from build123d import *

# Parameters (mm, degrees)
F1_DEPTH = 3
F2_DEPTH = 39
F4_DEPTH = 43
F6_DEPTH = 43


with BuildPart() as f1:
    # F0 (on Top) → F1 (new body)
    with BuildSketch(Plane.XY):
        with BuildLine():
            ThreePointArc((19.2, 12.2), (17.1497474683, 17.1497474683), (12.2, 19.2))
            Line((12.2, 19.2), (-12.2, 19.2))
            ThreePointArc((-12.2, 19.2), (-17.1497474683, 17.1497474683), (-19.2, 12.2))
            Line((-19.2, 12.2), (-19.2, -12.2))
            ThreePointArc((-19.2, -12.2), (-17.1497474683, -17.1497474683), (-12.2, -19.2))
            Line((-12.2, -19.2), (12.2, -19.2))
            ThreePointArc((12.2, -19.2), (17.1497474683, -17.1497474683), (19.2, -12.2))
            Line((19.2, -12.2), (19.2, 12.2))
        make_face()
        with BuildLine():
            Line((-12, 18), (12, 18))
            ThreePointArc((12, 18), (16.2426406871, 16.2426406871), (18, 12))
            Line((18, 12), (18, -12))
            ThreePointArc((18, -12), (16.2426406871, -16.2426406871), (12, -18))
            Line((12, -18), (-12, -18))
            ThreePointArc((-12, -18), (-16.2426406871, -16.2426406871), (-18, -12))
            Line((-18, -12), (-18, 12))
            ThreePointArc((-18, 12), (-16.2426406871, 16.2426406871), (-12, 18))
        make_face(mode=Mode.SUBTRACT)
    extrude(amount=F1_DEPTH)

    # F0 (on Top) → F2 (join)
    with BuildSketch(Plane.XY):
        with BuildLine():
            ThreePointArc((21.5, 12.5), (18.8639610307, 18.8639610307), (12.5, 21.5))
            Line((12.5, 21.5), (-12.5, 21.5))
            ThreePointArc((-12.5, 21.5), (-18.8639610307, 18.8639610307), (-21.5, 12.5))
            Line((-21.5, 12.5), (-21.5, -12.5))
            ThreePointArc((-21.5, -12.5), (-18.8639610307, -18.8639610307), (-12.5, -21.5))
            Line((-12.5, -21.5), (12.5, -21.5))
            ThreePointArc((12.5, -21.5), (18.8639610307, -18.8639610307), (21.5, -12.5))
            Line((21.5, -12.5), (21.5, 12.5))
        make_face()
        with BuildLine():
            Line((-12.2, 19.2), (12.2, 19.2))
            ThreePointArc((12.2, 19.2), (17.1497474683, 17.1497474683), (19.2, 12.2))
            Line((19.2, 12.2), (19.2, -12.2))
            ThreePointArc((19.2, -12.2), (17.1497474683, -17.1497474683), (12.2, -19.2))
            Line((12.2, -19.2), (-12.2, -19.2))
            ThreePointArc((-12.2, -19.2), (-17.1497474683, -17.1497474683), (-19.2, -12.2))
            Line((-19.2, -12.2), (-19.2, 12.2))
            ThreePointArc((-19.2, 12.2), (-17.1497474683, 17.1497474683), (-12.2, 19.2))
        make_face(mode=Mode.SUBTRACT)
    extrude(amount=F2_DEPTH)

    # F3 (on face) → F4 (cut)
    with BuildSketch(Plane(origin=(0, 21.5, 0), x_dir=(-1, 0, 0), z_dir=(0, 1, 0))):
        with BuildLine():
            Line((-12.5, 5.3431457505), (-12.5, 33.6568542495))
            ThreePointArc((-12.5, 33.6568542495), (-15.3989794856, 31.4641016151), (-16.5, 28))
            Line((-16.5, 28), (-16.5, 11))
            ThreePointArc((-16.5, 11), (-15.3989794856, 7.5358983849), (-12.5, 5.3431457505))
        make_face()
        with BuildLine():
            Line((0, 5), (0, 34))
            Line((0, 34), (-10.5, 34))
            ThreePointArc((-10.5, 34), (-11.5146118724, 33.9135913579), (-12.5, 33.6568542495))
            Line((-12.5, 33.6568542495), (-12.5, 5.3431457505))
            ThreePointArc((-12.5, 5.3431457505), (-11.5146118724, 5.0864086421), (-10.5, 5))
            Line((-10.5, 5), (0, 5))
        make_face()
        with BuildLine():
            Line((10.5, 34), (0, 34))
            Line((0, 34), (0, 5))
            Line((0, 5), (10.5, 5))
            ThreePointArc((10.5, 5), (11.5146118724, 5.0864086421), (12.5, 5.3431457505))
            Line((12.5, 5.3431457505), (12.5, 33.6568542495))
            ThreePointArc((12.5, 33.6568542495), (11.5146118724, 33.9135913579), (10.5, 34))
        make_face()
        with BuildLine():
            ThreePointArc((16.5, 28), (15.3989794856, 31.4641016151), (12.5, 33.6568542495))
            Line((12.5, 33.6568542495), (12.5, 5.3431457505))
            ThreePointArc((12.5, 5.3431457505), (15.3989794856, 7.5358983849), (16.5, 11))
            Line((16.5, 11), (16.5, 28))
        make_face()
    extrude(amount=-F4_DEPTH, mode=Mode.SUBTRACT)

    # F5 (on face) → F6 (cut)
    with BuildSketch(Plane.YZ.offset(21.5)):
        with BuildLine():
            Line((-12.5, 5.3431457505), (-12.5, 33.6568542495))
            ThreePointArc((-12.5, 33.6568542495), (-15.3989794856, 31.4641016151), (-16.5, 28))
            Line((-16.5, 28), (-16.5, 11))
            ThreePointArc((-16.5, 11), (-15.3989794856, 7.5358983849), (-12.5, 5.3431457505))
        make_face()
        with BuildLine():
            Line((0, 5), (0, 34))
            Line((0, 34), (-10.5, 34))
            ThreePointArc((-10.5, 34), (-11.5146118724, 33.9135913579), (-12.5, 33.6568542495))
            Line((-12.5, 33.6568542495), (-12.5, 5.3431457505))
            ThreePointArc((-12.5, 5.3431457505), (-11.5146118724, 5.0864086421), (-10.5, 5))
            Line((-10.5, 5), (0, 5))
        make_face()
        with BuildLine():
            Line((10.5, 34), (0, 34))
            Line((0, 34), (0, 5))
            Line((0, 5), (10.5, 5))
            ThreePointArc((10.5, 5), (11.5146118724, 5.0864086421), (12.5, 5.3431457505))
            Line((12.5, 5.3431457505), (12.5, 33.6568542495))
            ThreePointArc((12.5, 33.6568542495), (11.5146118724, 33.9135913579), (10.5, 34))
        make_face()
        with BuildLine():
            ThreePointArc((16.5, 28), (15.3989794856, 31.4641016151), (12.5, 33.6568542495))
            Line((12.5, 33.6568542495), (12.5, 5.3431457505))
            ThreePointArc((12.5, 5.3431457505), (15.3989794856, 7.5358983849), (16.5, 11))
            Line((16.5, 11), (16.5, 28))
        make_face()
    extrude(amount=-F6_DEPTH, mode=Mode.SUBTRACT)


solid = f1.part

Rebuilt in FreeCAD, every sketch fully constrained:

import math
import FreeCAD as App
import Part
import Sketcher
from FreeCAD import Vector

doc = App.newDocument("Part")
body = doc.addObject("PartDesign::Body", "Body")

# Sketch on XY plane
sketch1 = body.newObject("Sketcher::SketchObject", "Sketch")
sketch1.AttachmentSupport = (doc.getObject("XY_Plane"), [""])
sketch1.MapMode = "FlatFace"
sketch1.addGeometry(Part.ArcOfCircle(Part.Circle(Vector(12.2, 12.2, 0), Vector(0, 0, 1), 7), math.radians(0), math.radians(90)), False)
sketch1.addGeometry(Part.LineSegment(Vector(12.2, 19.2, 0), Vector(-12.2, 19.2, 0)), False)
sketch1.addGeometry(Part.ArcOfCircle(Part.Circle(Vector(-12.2, 12.2, 0), Vector(0, 0, 1), 7), math.radians(90), math.radians(180)), False)
sketch1.addGeometry(Part.LineSegment(Vector(-19.2, 12.2, 0), Vector(-19.2, -12.2, 0)), False)
sketch1.addGeometry(Part.ArcOfCircle(Part.Circle(Vector(-12.2, -12.2, 0), Vector(0, 0, 1), 7), math.radians(180), math.radians(270)), False)
sketch1.addGeometry(Part.LineSegment(Vector(-12.2, -19.2, 0), Vector(12.2, -19.2, 0)), False)
sketch1.addGeometry(Part.ArcOfCircle(Part.Circle(Vector(12.2, -12.2, 0), Vector(0, 0, 1), 7), math.radians(-90), math.radians(0)), False)
sketch1.addGeometry(Part.LineSegment(Vector(19.2, -12.2, 0), Vector(19.2, 12.2, 0)), False)
sketch1.addGeometry(Part.ArcOfCircle(Part.Circle(Vector(-12, 12, 0), Vector(0, 0, 1), 6), math.radians(90), math.radians(180)), False)
sketch1.addGeometry(Part.LineSegment(Vector(-12, 18, 0), Vector(12, 18, 0)), False)
sketch1.addGeometry(Part.ArcOfCircle(Part.Circle(Vector(12, 12, 0), Vector(0, 0, 1), 6), math.radians(0), math.radians(90)), False)
sketch1.addGeometry(Part.LineSegment(Vector(18, 12, 0), Vector(18, -12, 0)), False)
sketch1.addGeometry(Part.ArcOfCircle(Part.Circle(Vector(12, -12, 0), Vector(0, 0, 1), 6), math.radians(-90), math.radians(0)), False)
sketch1.addGeometry(Part.LineSegment(Vector(12, -18, 0), Vector(-12, -18, 0)), False)
sketch1.addGeometry(Part.ArcOfCircle(Part.Circle(Vector(-12, -12, 0), Vector(0, 0, 1), 6), math.radians(180), math.radians(270)), False)
sketch1.addGeometry(Part.LineSegment(Vector(-18, -12, 0), Vector(-18, 12, 0)), False)
sketch1.addConstraint(Sketcher.Constraint("Tangent", 0, 2, 1, 1))
sketch1.addConstraint(Sketcher.Constraint("Tangent", 1, 2, 2, 1))
sketch1.addConstraint(Sketcher.Constraint("Tangent", 2, 2, 3, 1))
sketch1.addConstraint(Sketcher.Constraint("Tangent", 3, 2, 4, 1))
sketch1.addConstraint(Sketcher.Constraint("Tangent", 4, 2, 5, 1))
sketch1.addConstraint(Sketcher.Constraint("Tangent", 5, 2, 6, 1))
sketch1.addConstraint(Sketcher.Constraint("Tangent", 6, 2, 7, 1))
sketch1.addConstraint(Sketcher.Constraint("Tangent", 7, 2, 0, 1))
sketch1.addConstraint(Sketcher.Constraint("Tangent", 8, 1, 9, 1))
sketch1.addConstraint(Sketcher.Constraint("Tangent", 9, 2, 10, 2))
sketch1.addConstraint(Sketcher.Constraint("Tangent", 10, 1, 11, 1))
sketch1.addConstraint(Sketcher.Constraint("Tangent", 11, 2, 12, 2))
sketch1.addConstraint(Sketcher.Constraint("Tangent", 12, 1, 13, 1))
sketch1.addConstraint(Sketcher.Constraint("Tangent", 13, 2, 14, 2))
sketch1.addConstraint(Sketcher.Constraint("Tangent", 14, 1, 15, 1))
sketch1.addConstraint(Sketcher.Constraint("Tangent", 15, 2, 8, 2))
sketch1.addConstraint(Sketcher.Constraint("Horizontal", 1))
sketch1.addConstraint(Sketcher.Constraint("Vertical", 3))
sketch1.addConstraint(Sketcher.Constraint("Horizontal", 5))
sketch1.addConstraint(Sketcher.Constraint("Vertical", 7))
sketch1.addConstraint(Sketcher.Constraint("Horizontal", 9))
sketch1.addConstraint(Sketcher.Constraint("Vertical", 11))
sketch1.addConstraint(Sketcher.Constraint("Horizontal", 13))
sketch1.addConstraint(Sketcher.Constraint("Vertical", 15))
sketch1.addConstraint(Sketcher.Constraint("Equal", 0, 2))
sketch1.addConstraint(Sketcher.Constraint("Equal", 2, 4))
sketch1.addConstraint(Sketcher.Constraint("Equal", 4, 6))
sketch1.addConstraint(Sketcher.Constraint("Equal", 8, 10))
sketch1.addConstraint(Sketcher.Constraint("Equal", 10, 12))
sketch1.addConstraint(Sketcher.Constraint("Equal", 12, 14))
sketch1.addConstraint(Sketcher.Constraint("Symmetric", 0, 3, 4, 3, -1, 1))
sketch1.addConstraint(Sketcher.Constraint("Symmetric", 8, 3, 12, 3, -1, 1))
sketch1.addConstraint(Sketcher.Constraint("Equal", 5, 3))
sketch1.addConstraint(Sketcher.Constraint("Equal", 13, 11))
sketch1.addConstraint(Sketcher.Constraint("Radius", 0, 7.0))
sketch1.addConstraint(Sketcher.Constraint("Radius", 8, 6.0))
sketch1.addConstraint(Sketcher.Constraint("DistanceX", 9, 1, 9, 2, 24.0))
sketch1.addConstraint(Sketcher.Constraint("DistanceX", 1, 2, 1, 1, 24.4))
pad1 = body.newObject("PartDesign::Pad", "Pad")
pad1.Profile = sketch1
pad1.Length = 3

# Sketch on XY plane
sketch2 = body.newObject("Sketcher::SketchObject", "Sketch001")
sketch2.AttachmentSupport = (doc.getObject("XY_Plane"), [""])
sketch2.MapMode = "FlatFace"
sketch2.addGeometry(Part.ArcOfCircle(Part.Circle(Vector(12.5, 12.5, 0), Vector(0, 0, 1), 9), math.radians(0), math.radians(90)), False)
sketch2.addGeometry(Part.LineSegment(Vector(12.5, 21.5, 0), Vector(-12.5, 21.5, 0)), False)
sketch2.addGeometry(Part.ArcOfCircle(Part.Circle(Vector(-12.5, 12.5, 0), Vector(0, 0, 1), 9), math.radians(90), math.radians(180)), False)
sketch2.addGeometry(Part.LineSegment(Vector(-21.5, 12.5, 0), Vector(-21.5, -12.5, 0)), False)
sketch2.addGeometry(Part.ArcOfCircle(Part.Circle(Vector(-12.5, -12.5, 0), Vector(0, 0, 1), 9), math.radians(180), math.radians(270)), False)
sketch2.addGeometry(Part.LineSegment(Vector(-12.5, -21.5, 0), Vector(12.5, -21.5, 0)), False)
sketch2.addGeometry(Part.ArcOfCircle(Part.Circle(Vector(12.5, -12.5, 0), Vector(0, 0, 1), 9), math.radians(-90), math.radians(0)), False)
sketch2.addGeometry(Part.LineSegment(Vector(21.5, -12.5, 0), Vector(21.5, 12.5, 0)), False)
sketch2.addGeometry(Part.ArcOfCircle(Part.Circle(Vector(-12.2, 12.2, 0), Vector(0, 0, 1), 7), math.radians(90), math.radians(180)), False)
sketch2.addGeometry(Part.LineSegment(Vector(-12.2, 19.2, 0), Vector(12.2, 19.2, 0)), False)
sketch2.addGeometry(Part.ArcOfCircle(Part.Circle(Vector(12.2, 12.2, 0), Vector(0, 0, 1), 7), math.radians(0), math.radians(90)), False)
sketch2.addGeometry(Part.LineSegment(Vector(19.2, 12.2, 0), Vector(19.2, -12.2, 0)), False)
sketch2.addGeometry(Part.ArcOfCircle(Part.Circle(Vector(12.2, -12.2, 0), Vector(0, 0, 1), 7), math.radians(-90), math.radians(0)), False)
sketch2.addGeometry(Part.LineSegment(Vector(12.2, -19.2, 0), Vector(-12.2, -19.2, 0)), False)
sketch2.addGeometry(Part.ArcOfCircle(Part.Circle(Vector(-12.2, -12.2, 0), Vector(0, 0, 1), 7), math.radians(180), math.radians(270)), False)
sketch2.addGeometry(Part.LineSegment(Vector(-19.2, -12.2, 0), Vector(-19.2, 12.2, 0)), False)
sketch2.addConstraint(Sketcher.Constraint("Tangent", 0, 2, 1, 1))
sketch2.addConstraint(Sketcher.Constraint("Tangent", 1, 2, 2, 1))
sketch2.addConstraint(Sketcher.Constraint("Tangent", 2, 2, 3, 1))
sketch2.addConstraint(Sketcher.Constraint("Tangent", 3, 2, 4, 1))
sketch2.addConstraint(Sketcher.Constraint("Tangent", 4, 2, 5, 1))
sketch2.addConstraint(Sketcher.Constraint("Tangent", 5, 2, 6, 1))
sketch2.addConstraint(Sketcher.Constraint("Tangent", 6, 2, 7, 1))
sketch2.addConstraint(Sketcher.Constraint("Tangent", 7, 2, 0, 1))
sketch2.addConstraint(Sketcher.Constraint("Tangent", 8, 1, 9, 1))
sketch2.addConstraint(Sketcher.Constraint("Tangent", 9, 2, 10, 2))
sketch2.addConstraint(Sketcher.Constraint("Tangent", 10, 1, 11, 1))
sketch2.addConstraint(Sketcher.Constraint("Tangent", 11, 2, 12, 2))
sketch2.addConstraint(Sketcher.Constraint("Tangent", 12, 1, 13, 1))
sketch2.addConstraint(Sketcher.Constraint("Tangent", 13, 2, 14, 2))
sketch2.addConstraint(Sketcher.Constraint("Tangent", 14, 1, 15, 1))
sketch2.addConstraint(Sketcher.Constraint("Tangent", 15, 2, 8, 2))
sketch2.addConstraint(Sketcher.Constraint("Horizontal", 1))
sketch2.addConstraint(Sketcher.Constraint("Vertical", 3))
sketch2.addConstraint(Sketcher.Constraint("Horizontal", 5))
sketch2.addConstraint(Sketcher.Constraint("Vertical", 7))
sketch2.addConstraint(Sketcher.Constraint("Horizontal", 9))
sketch2.addConstraint(Sketcher.Constraint("Vertical", 11))
sketch2.addConstraint(Sketcher.Constraint("Horizontal", 13))
sketch2.addConstraint(Sketcher.Constraint("Vertical", 15))
sketch2.addConstraint(Sketcher.Constraint("Equal", 0, 2))
sketch2.addConstraint(Sketcher.Constraint("Equal", 2, 4))
sketch2.addConstraint(Sketcher.Constraint("Equal", 4, 6))
sketch2.addConstraint(Sketcher.Constraint("Equal", 8, 10))
sketch2.addConstraint(Sketcher.Constraint("Equal", 10, 12))
sketch2.addConstraint(Sketcher.Constraint("Equal", 12, 14))
sketch2.addConstraint(Sketcher.Constraint("Symmetric", 0, 3, 4, 3, -1, 1))
sketch2.addConstraint(Sketcher.Constraint("Symmetric", 8, 3, 12, 3, -1, 1))
sketch2.addConstraint(Sketcher.Constraint("Equal", 5, 3))
sketch2.addConstraint(Sketcher.Constraint("Equal", 13, 11))
sketch2.addConstraint(Sketcher.Constraint("Radius", 0, 9.0))
sketch2.addConstraint(Sketcher.Constraint("Radius", 8, 7.0))
sketch2.addConstraint(Sketcher.Constraint("DistanceX", 1, 2, 1, 1, 25.0))
sketch2.addConstraint(Sketcher.Constraint("DistanceX", 9, 1, 9, 2, 24.4))
pad2 = body.newObject("PartDesign::Pad", "Pad001")
pad2.Profile = sketch2
pad2.Length = 39

# Sketch on XZ plane
sketch3 = body.newObject("Sketcher::SketchObject", "Sketch002")
sketch3.AttachmentSupport = (doc.getObject("XZ_Plane"), [""])
sketch3.MapMode = "FlatFace"
sketch3.AttachmentOffset = App.Placement(Vector(0, 0, -21.5), App.Rotation())
sketch3.addGeometry(Part.ArcOfCircle(Part.Circle(Vector(10.5, 28, 0), Vector(0, 0, 1), 6), math.radians(0), math.radians(70.528779)), False)
sketch3.addGeometry(Part.LineSegment(Vector(16.5, 28, 0), Vector(16.5, 11, 0)), False)
sketch3.addGeometry(Part.ArcOfCircle(Part.Circle(Vector(10.5, 11, 0), Vector(0, 0, 1), 6), math.radians(-70.528779), math.radians(0)), False)
sketch3.addGeometry(Part.ArcOfCircle(Part.Circle(Vector(10.5, 11, 0), Vector(0, 0, 1), 6), math.radians(-90), math.radians(-70.528779)), False)
sketch3.addGeometry(Part.LineSegment(Vector(10.5, 5, 0), Vector(-10.5, 5, 0)), False)
sketch3.addGeometry(Part.ArcOfCircle(Part.Circle(Vector(-10.5, 11, 0), Vector(0, 0, 1), 6), math.radians(-109.471221), math.radians(-90)), False)
sketch3.addGeometry(Part.ArcOfCircle(Part.Circle(Vector(-10.5, 11, 0), Vector(0, 0, 1), 6), math.radians(180), math.radians(250.528779)), False)
sketch3.addGeometry(Part.LineSegment(Vector(-16.5, 11, 0), Vector(-16.5, 28, 0)), False)
sketch3.addGeometry(Part.ArcOfCircle(Part.Circle(Vector(-10.5, 28, 0), Vector(0, 0, 1), 6), math.radians(109.471221), math.radians(180)), False)
sketch3.addGeometry(Part.ArcOfCircle(Part.Circle(Vector(-10.5, 28, 0), Vector(0, 0, 1), 6), math.radians(90), math.radians(109.471221)), False)
sketch3.addGeometry(Part.LineSegment(Vector(-10.5, 34, 0), Vector(10.5, 34, 0)), False)
sketch3.addGeometry(Part.ArcOfCircle(Part.Circle(Vector(10.5, 28, 0), Vector(0, 0, 1), 6), math.radians(70.528779), math.radians(90)), False)
sketch3.addConstraint(Sketcher.Constraint("Tangent", 0, 1, 1, 1))
sketch3.addConstraint(Sketcher.Constraint("Tangent", 1, 2, 2, 2))
sketch3.addConstraint(Sketcher.Constraint("Tangent", 2, 1, 3, 2))
sketch3.addConstraint(Sketcher.Constraint("Tangent", 3, 1, 4, 1))
sketch3.addConstraint(Sketcher.Constraint("Tangent", 4, 2, 5, 2))
sketch3.addConstraint(Sketcher.Constraint("Tangent", 5, 1, 6, 2))
sketch3.addConstraint(Sketcher.Constraint("Tangent", 6, 1, 7, 1))
sketch3.addConstraint(Sketcher.Constraint("Tangent", 7, 2, 8, 2))
sketch3.addConstraint(Sketcher.Constraint("Tangent", 8, 1, 9, 2))
sketch3.addConstraint(Sketcher.Constraint("Tangent", 9, 1, 10, 1))
sketch3.addConstraint(Sketcher.Constraint("Tangent", 10, 2, 11, 2))
sketch3.addConstraint(Sketcher.Constraint("Tangent", 11, 1, 0, 2))
sketch3.addConstraint(Sketcher.Constraint("Vertical", 1))
sketch3.addConstraint(Sketcher.Constraint("Horizontal", 4))
sketch3.addConstraint(Sketcher.Constraint("Vertical", 7))
sketch3.addConstraint(Sketcher.Constraint("Horizontal", 10))
sketch3.addConstraint(Sketcher.Constraint("Equal", 0, 2))
sketch3.addConstraint(Sketcher.Constraint("Equal", 2, 3))
sketch3.addConstraint(Sketcher.Constraint("Equal", 3, 5))
sketch3.addConstraint(Sketcher.Constraint("Equal", 5, 6))
sketch3.addConstraint(Sketcher.Constraint("Equal", 6, 8))
sketch3.addConstraint(Sketcher.Constraint("Equal", 8, 9))
sketch3.addConstraint(Sketcher.Constraint("Equal", 9, 11))
sketch3.addConstraint(Sketcher.Constraint("Symmetric", 2, 1, 5, 1, -2))
sketch3.addConstraint(Sketcher.Constraint("Horizontal", 8, 1, 11, 1))
sketch3.addConstraint(Sketcher.Constraint("Vertical", 5, 1, 8, 1))
sketch3.addConstraint(Sketcher.Constraint("Radius", 0, 6.0))
sketch3.addConstraint(Sketcher.Constraint("DistanceX", 4, 2, 4, 1, 21.0))
sketch3.addConstraint(Sketcher.Constraint("DistanceY", 1, 2, 1, 1, 17.0))
sketch3.addConstraint(Sketcher.Constraint("DistanceY", -1, 1, 0, 3, 28.0))
sketch3.addConstraint(Sketcher.Constraint("DistanceX", 2, 3, 2, 1, 2.0))
pocket1 = body.newObject("PartDesign::Pocket", "Pocket")
pocket1.Profile = sketch3
pocket1.Length = 43
pocket1.Reversed = True

# Sketch on YZ plane
sketch4 = body.newObject("Sketcher::SketchObject", "Sketch003")
sketch4.AttachmentSupport = (doc.getObject("YZ_Plane"), [""])
sketch4.MapMode = "FlatFace"
sketch4.AttachmentOffset = App.Placement(Vector(0, 0, 21.5), App.Rotation())
sketch4.addGeometry(Part.ArcOfCircle(Part.Circle(Vector(-10.5, 28, 0), Vector(0, 0, 1), 6), math.radians(109.471221), math.radians(180)), False)
sketch4.addGeometry(Part.LineSegment(Vector(-16.5, 28, 0), Vector(-16.5, 11, 0)), False)
sketch4.addGeometry(Part.ArcOfCircle(Part.Circle(Vector(-10.5, 11, 0), Vector(0, 0, 1), 6), math.radians(180), math.radians(250.528779)), False)
sketch4.addGeometry(Part.ArcOfCircle(Part.Circle(Vector(-10.5, 11, 0), Vector(0, 0, 1), 6), math.radians(-109.471221), math.radians(-90)), False)
sketch4.addGeometry(Part.LineSegment(Vector(-10.5, 5, 0), Vector(10.5, 5, 0)), False)
sketch4.addGeometry(Part.ArcOfCircle(Part.Circle(Vector(10.5, 11, 0), Vector(0, 0, 1), 6), math.radians(-90), math.radians(-70.528779)), False)
sketch4.addGeometry(Part.ArcOfCircle(Part.Circle(Vector(10.5, 11, 0), Vector(0, 0, 1), 6), math.radians(-70.528779), math.radians(0)), False)
sketch4.addGeometry(Part.LineSegment(Vector(16.5, 11, 0), Vector(16.5, 28, 0)), False)
sketch4.addGeometry(Part.ArcOfCircle(Part.Circle(Vector(10.5, 28, 0), Vector(0, 0, 1), 6), math.radians(0), math.radians(70.528779)), False)
sketch4.addGeometry(Part.ArcOfCircle(Part.Circle(Vector(10.5, 28, 0), Vector(0, 0, 1), 6), math.radians(70.528779), math.radians(90)), False)
sketch4.addGeometry(Part.LineSegment(Vector(10.5, 34, 0), Vector(-10.5, 34, 0)), False)
sketch4.addGeometry(Part.ArcOfCircle(Part.Circle(Vector(-10.5, 28, 0), Vector(0, 0, 1), 6), math.radians(90), math.radians(109.471221)), False)
sketch4.addConstraint(Sketcher.Constraint("Tangent", 0, 2, 1, 1))
sketch4.addConstraint(Sketcher.Constraint("Tangent", 1, 2, 2, 1))
sketch4.addConstraint(Sketcher.Constraint("Tangent", 2, 2, 3, 1))
sketch4.addConstraint(Sketcher.Constraint("Tangent", 3, 2, 4, 1))
sketch4.addConstraint(Sketcher.Constraint("Tangent", 4, 2, 5, 1))
sketch4.addConstraint(Sketcher.Constraint("Tangent", 5, 2, 6, 1))
sketch4.addConstraint(Sketcher.Constraint("Tangent", 6, 2, 7, 1))
sketch4.addConstraint(Sketcher.Constraint("Tangent", 7, 2, 8, 1))
sketch4.addConstraint(Sketcher.Constraint("Tangent", 8, 2, 9, 1))
sketch4.addConstraint(Sketcher.Constraint("Tangent", 9, 2, 10, 1))
sketch4.addConstraint(Sketcher.Constraint("Tangent", 10, 2, 11, 1))
sketch4.addConstraint(Sketcher.Constraint("Tangent", 11, 2, 0, 1))
sketch4.addConstraint(Sketcher.Constraint("Vertical", 1))
sketch4.addConstraint(Sketcher.Constraint("Horizontal", 4))
sketch4.addConstraint(Sketcher.Constraint("Vertical", 7))
sketch4.addConstraint(Sketcher.Constraint("Horizontal", 10))
sketch4.addConstraint(Sketcher.Constraint("Equal", 0, 2))
sketch4.addConstraint(Sketcher.Constraint("Equal", 2, 3))
sketch4.addConstraint(Sketcher.Constraint("Equal", 3, 5))
sketch4.addConstraint(Sketcher.Constraint("Equal", 5, 6))
sketch4.addConstraint(Sketcher.Constraint("Equal", 6, 8))
sketch4.addConstraint(Sketcher.Constraint("Equal", 8, 9))
sketch4.addConstraint(Sketcher.Constraint("Equal", 9, 11))
sketch4.addConstraint(Sketcher.Constraint("Symmetric", 2, 2, 5, 2, -2))
sketch4.addConstraint(Sketcher.Constraint("Horizontal", 8, 2, 11, 2))
sketch4.addConstraint(Sketcher.Constraint("Vertical", 5, 2, 8, 2))
sketch4.addConstraint(Sketcher.Constraint("Radius", 0, 6.0))
sketch4.addConstraint(Sketcher.Constraint("DistanceX", 4, 1, 4, 2, 21.0))
sketch4.addConstraint(Sketcher.Constraint("DistanceY", 1, 2, 1, 1, 17.0))
sketch4.addConstraint(Sketcher.Constraint("DistanceY", -1, 1, 0, 3, 28.0))
sketch4.addConstraint(Sketcher.Constraint("DistanceX", 2, 2, 2, 3, 2.0))
pocket2 = body.newObject("PartDesign::Pocket", "Pocket001")
pocket2.Profile = sketch4
pocket2.Length = 43

doc.recompute()
